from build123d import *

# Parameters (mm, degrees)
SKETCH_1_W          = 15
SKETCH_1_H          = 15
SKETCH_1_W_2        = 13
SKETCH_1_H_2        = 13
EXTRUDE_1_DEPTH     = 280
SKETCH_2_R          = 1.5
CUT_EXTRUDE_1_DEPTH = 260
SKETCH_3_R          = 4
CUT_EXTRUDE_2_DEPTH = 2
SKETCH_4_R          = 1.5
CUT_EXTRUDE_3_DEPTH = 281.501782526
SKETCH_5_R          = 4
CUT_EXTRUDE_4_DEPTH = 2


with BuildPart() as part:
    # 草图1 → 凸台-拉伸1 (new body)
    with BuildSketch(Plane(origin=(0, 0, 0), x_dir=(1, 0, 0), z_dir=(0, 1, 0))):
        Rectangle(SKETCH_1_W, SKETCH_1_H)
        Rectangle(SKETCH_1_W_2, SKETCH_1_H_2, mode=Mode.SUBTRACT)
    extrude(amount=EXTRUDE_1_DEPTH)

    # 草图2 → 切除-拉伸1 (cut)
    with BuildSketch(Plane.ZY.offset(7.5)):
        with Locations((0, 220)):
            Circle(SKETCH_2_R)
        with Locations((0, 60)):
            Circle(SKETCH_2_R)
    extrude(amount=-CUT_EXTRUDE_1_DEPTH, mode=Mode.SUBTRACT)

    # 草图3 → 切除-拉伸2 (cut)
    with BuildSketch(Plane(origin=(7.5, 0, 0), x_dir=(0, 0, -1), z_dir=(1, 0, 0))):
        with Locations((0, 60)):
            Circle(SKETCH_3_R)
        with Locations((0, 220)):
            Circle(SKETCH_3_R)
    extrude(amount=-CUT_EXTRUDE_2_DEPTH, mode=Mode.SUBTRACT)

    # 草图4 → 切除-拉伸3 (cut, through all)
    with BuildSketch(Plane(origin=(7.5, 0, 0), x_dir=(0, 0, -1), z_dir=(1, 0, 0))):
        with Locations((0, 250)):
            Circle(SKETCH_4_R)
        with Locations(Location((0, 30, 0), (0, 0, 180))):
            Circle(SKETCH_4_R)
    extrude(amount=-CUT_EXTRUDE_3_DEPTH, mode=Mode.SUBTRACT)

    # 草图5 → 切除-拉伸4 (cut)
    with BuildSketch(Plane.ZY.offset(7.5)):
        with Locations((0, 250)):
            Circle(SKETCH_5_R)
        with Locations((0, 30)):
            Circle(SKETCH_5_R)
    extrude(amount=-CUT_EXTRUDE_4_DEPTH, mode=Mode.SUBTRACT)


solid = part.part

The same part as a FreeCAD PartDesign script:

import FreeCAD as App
import Part
import Sketcher
from FreeCAD import Vector

doc = App.newDocument("Part")
body = doc.addObject("PartDesign::Body", "Body")

# Sketch on XZ plane
sketch1 = body.newObject("Sketcher::SketchObject", "Sketch")
sketch1.AttachmentSupport = (doc.getObject("XZ_Plane"), [""])
sketch1.MapMode = "FlatFace"
sketch1.addGeometry([
    Part.LineSegment(Vector(-8, -8, 0), Vector(-8, 8, 0)),  # 0
    Part.LineSegment(Vector(-8, 8, 0), Vector(8, 8, 0)),  # 1
    Part.LineSegment(Vector(8, 8, 0), Vector(8, -8, 0)),  # 2
    Part.LineSegment(Vector(8, -8, 0), Vector(-8, -8, 0)),  # 3
    Part.LineSegment(Vector(6, 6, 0), Vector(-6, 6, 0)),  # 4
    Part.LineSegment(Vector(-6, 6, 0), Vector(-6, -6, 0)),  # 5
    Part.LineSegment(Vector(-6, -6, 0), Vector(6, -6, 0)),  # 6
    Part.LineSegment(Vector(6, -6, 0), Vector(6, 6, 0)),  # 7
], False)
sketch1.addConstraint([
    Sketcher.Constraint("Coincident", 0, 2, 1, 1),
    Sketcher.Constraint("Coincident", 1, 2, 2, 1),
    Sketcher.Constraint("Coincident", 2, 2, 3, 1),
    Sketcher.Constraint("Coincident", 3, 2, 0, 1),
    Sketcher.Constraint("Coincident", 4, 2, 5, 1),
    Sketcher.Constraint("Coincident", 5, 2, 6, 1),
    Sketcher.Constraint("Coincident", 6, 2, 7, 1),
    Sketcher.Constraint("Coincident", 7, 2, 4, 1),
    Sketcher.Constraint("Vertical", 0),
    Sketcher.Constraint("Horizontal", 1),
    Sketcher.Constraint("Vertical", 2),
    Sketcher.Constraint("Horizontal", 3),
    Sketcher.Constraint("Horizontal", 4),
    Sketcher.Constraint("Vertical", 5),
    Sketcher.Constraint("Horizontal", 6),
    Sketcher.Constraint("Vertical", 7),
    Sketcher.Constraint("Symmetric", 0, 2, 2, 2, -1, 1),
    Sketcher.Constraint("Symmetric", 4, 2, 6, 2, -1, 1),
    Sketcher.Constraint("Equal", 3, 0),
    Sketcher.Constraint("Equal", 6, 5),
    Sketcher.Constraint("DistanceX", 1, 1, 1, 2, 15.0),
    Sketcher.Constraint("DistanceX", 4, 2, 4, 1, 13.0),
])
pad1 = body.newObject("PartDesign::Pad", "Pad")
pad1.Profile = sketch1
pad1.Length = 280
pad1.Reversed = True

# Sketch on YZ plane
sketch2 = body.newObject("Sketcher::SketchObject", "Sketch001")
sketch2.AttachmentSupport = (doc.getObject("YZ_Plane"), [""])
sketch2.MapMode = "FlatFace"
sketch2.AttachmentOffset = App.Placement(Vector(0, 0, -7.5), App.Rotation())
sketch2.addGeometry([
    Part.Circle(Vector(220, 0, 0), Vector(0, 0, 1), 1.5),
    Part.Circle(Vector(60, 0, 0), Vector(0, 0, 1), 1.5),
], False)
sketch2.addConstraint([
    Sketcher.Constraint("Equal", 0, 1),
    Sketcher.Constraint("PointOnObject", 0, 3, -1),
    Sketcher.Constraint("PointOnObject", 1, 3, -1),
    Sketcher.Constraint("Diameter", 0, 3.0),
    Sketcher.Constraint("DistanceX", -1, 1, 0, 3, 220.0),
    Sketcher.Constraint("DistanceX", -1, 1, 1, 3, 60.0),
])
pocket1 = body.newObject("PartDesign::Pocket", "Pocket")
pocket1.Profile = sketch2
pocket1.Length = 260
pocket1.Reversed = True

# Sketch on YZ plane
sketch3 = body.newObject("Sketcher::SketchObject", "Sketch002")
sketch3.AttachmentSupport = (doc.getObject("YZ_Plane"), [""])
sketch3.MapMode = "FlatFace"
sketch3.AttachmentOffset = App.Placement(Vector(0, 0, 7.5), App.Rotation())
sketch3.addGeometry([
    Part.Circle(Vector(60, 0, 0), Vector(0, 0, 1), 4),
    Part.Circle(Vector(220, 0, 0), Vector(0, 0, 1), 4),
], False)
sketch3.addConstraint([
    Sketcher.Constraint("Equal", 0, 1),
    Sketcher.Constraint("PointOnObject", 0, 3, -1),
    Sketcher.Constraint("PointOnObject", 1, 3, -1),
    Sketcher.Constraint("Diameter", 0, 8.0),
    Sketcher.Constraint("DistanceX", -1, 1, 0, 3, 60.0),
    Sketcher.Constraint("DistanceX", -1, 1, 1, 3, 220.0),
])
pocket2 = body.newObject("PartDesign::Pocket", "Pocket001")
pocket2.Profile = sketch3
pocket2.Length = 2

# Sketch on YZ plane
sketch4 = body.newObject("Sketcher::SketchObject", "Sketch003")
sketch4.AttachmentSupport = (doc.getObject("YZ_Plane"), [""])
sketch4.MapMode = "FlatFace"
sketch4.AttachmentOffset = App.Placement(Vector(0, 0, 7.5), App.Rotation())
sketch4.addGeometry([
    Part.Circle(Vector(250, 0, 0), Vector(0, 0, 1), 1.5),
    Part.Circle(Vector(30, 0, 0), Vector(0, 0, 1), 1.5),
], False)
sketch4.addConstraint([
    Sketcher.Constraint("Equal", 0, 1),
    Sketcher.Constraint("PointOnObject", 0, 3, -1),
    Sketcher.Constraint("PointOnObject", 1, 3, -1),
    Sketcher.Constraint("Diameter", 0, 3.0),
    Sketcher.Constraint("DistanceX", -1, 1, 0, 3, 250.0),
    Sketcher.Constraint("DistanceX", -1, 1, 1, 3, 30.0),
])
pocket3 = body.newObject("PartDesign::Pocket", "Pocket002")
pocket3.Profile = sketch4
pocket3.Type = "ThroughAll"

# Sketch on YZ plane
sketch5 = body.newObject("Sketcher::SketchObject", "Sketch004")
sketch5.AttachmentSupport = (doc.getObject("YZ_Plane"), [""])
sketch5.MapMode = "FlatFace"
sketch5.AttachmentOffset = App.Placement(Vector(0, 0, -7.5), App.Rotation())
sketch5.addGeometry([
    Part.Circle(Vector(250, 0, 0), Vector(0, 0, 1), 4),
    Part.Circle(Vector(30, 0, 0), Vector(0, 0, 1), 4),
], False)
sketch5.addConstraint([
    Sketcher.Constraint("Equal", 0, 1),
    Sketcher.Constraint("PointOnObject", 0, 3, -1),
    Sketcher.Constraint("PointOnObject", 1, 3, -1),
    Sketcher.Constraint("Diameter", 0, 8.0),
    Sketcher.Constraint("DistanceX", -1, 1, 0, 3, 250.0),
    Sketcher.Constraint("DistanceX", -1, 1, 1, 3, 30.0),
])
pocket4 = body.newObject("PartDesign::Pocket", "Pocket003")
pocket4.Profile = sketch5
pocket4.Length = 2
pocket4.Reversed = True

doc.recompute()
